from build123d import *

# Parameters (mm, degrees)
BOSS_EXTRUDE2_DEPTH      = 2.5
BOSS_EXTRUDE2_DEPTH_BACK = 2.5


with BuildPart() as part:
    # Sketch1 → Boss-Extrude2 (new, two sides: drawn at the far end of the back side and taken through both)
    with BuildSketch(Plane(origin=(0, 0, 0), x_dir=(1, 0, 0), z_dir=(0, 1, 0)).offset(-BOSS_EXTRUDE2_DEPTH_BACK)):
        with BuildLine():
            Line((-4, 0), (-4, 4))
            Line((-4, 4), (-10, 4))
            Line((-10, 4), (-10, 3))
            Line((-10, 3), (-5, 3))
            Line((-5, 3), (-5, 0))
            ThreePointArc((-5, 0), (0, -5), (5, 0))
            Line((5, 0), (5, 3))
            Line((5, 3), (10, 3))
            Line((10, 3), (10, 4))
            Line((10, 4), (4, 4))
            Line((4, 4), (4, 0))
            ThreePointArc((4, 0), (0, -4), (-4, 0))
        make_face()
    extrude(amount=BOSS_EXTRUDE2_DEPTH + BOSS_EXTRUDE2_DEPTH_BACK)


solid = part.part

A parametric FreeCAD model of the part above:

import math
import FreeCAD as App
import Part
import Sketcher

doc = App.newDocument("Part")
body = doc.addObject("PartDesign::Body", "Body")

# Sketch on XZ plane
sketch1 = body.newObject("Sketcher::SketchObject", "Sketch")
sketch1.AttachmentSupport = (doc.getObject("XZ_Plane"), [""])
sketch1.MapMode = "FlatFace"
sketch1.addGeometry(Part.LineSegment(App.Vector(-4, 0, 0), App.Vector(-4, -4, 0)), False)
sketch1.addGeometry(Part.LineSegment(App.Vector(-4, -4, 0), App.Vector(-10, -4, 0)), False)
sketch1.addGeometry(Part.LineSegment(App.Vector(-10, -4, 0), App.Vector(-10, -3, 0)), False)
sketch1.addGeometry(Part.LineSegment(App.Vector(-10, -3, 0), App.Vector(-5, -3, 0)), False)
sketch1.addGeometry(Part.LineSegment(App.Vector(-5, -3, 0), App.Vector(-5, 0, 0)), False)
sketch1.addGeometry(Part.ArcOfCircle(Part.Circle(App.Vector(0, 0, 0), App.Vector(0, 0, 1), 5), math.radians(0), math.radians(180)), False)
sketch1.addGeometry(Part.LineSegment(App.Vector(5, 0, 0), App.Vector(5, -3, 0)), False)
sketch1.addGeometry(Part.LineSegment(App.Vector(5, -3, 0), App.Vector(10, -3, 0)), False)
sketch1.addGeometry(Part.LineSegment(App.Vector(10, -3, 0), App.Vector(10, -4, 0)), False)
sketch1.addGeometry(Part.LineSegment(App.Vector(10, -4, 0), App.Vector(4, -4, 0)), False)
sketch1.addGeometry(Part.LineSegment(App.Vector(4, -4, 0), App.Vector(4, 0, 0)), False)
sketch1.addGeometry(Part.ArcOfCircle(Part.Circle(App.Vector(0, 0, 0), App.Vector(0, 0, 1), 4), math.radians(0), math.radians(180)), False)
sketch1.addConstraint(Sketcher.Constraint("Coincident", 0, 2, 1, 1))
sketch1.addConstraint(Sketcher.Constraint("Coincident", 1, 2, 2, 1))
sketch1.addConstraint(Sketcher.Constraint("Coincident", 2, 2, 3, 1))
sketch1.addConstraint(Sketcher.Constraint("Coincident", 3, 2, 4, 1))
sketch1.addConstraint(Sketcher.Constraint("Tangent", 4, 2, 5, 2))
sketch1.addConstraint(Sketcher.Constraint("Tangent", 5, 1, 6, 1))
sketch1.addConstraint(Sketcher.Constraint("Coincident", 6, 2, 7, 1))
sketch1.addConstraint(Sketcher.Constraint("Coincident", 7, 2, 8, 1))
sketch1.addConstraint(Sketcher.Constraint("Coincident", 8, 2, 9, 1))
sketch1.addConstraint(Sketcher.Constraint("Coincident", 9, 2, 10, 1))
sketch1.addConstraint(Sketcher.Constraint("Tangent", 10, 2, 11, 1))
sketch1.addConstraint(Sketcher.Constraint("Tangent", 11, 2, 0, 1))
sketch1.addConstraint(Sketcher.Constraint("Vertical", 0))
sketch1.addConstraint(Sketcher.Constraint("Horizontal", 1))
sketch1.addConstraint(Sketcher.Constraint("Vertical", 2))
sketch1.addConstraint(Sketcher.Constraint("Horizontal", 3))
sketch1.addConstraint(Sketcher.Constraint("Vertical", 4))
sketch1.addConstraint(Sketcher.Constraint("Vertical", 6))
sketch1.addConstraint(Sketcher.Constraint("Horizontal", 7))
sketch1.addConstraint(Sketcher.Constraint("Vertical", 8))
sketch1.addConstraint(Sketcher.Constraint("Horizontal", 9))
sketch1.addConstraint(Sketcher.Constraint("Vertical", 10))
sketch1.addConstraint(Sketcher.Constraint("Coincident", 5, 3, -1, 1))
sketch1.addConstraint(Sketcher.Constraint("Coincident", 11, 3, -1, 1))
sketch1.addConstraint(Sketcher.Constraint("Symmetric", 2, 2, 7, 2, -2))
sketch1.addConstraint(Sketcher.Constraint("Horizontal", 1, 2, 8, 2))
sketch1.addConstraint(Sketcher.Constraint("Radius", 5, 5.0))
sketch1.addConstraint(Sketcher.Constraint("Radius", 11, 4.0))
sketch1.addConstraint(Sketcher.Constraint("DistanceX", 1, 2, 1, 1, 6.0))
sketch1.addConstraint(Sketcher.Constraint("DistanceY", 0, 2, 0, 1, 4.0))
sketch1.addConstraint(Sketcher.Constraint("DistanceY", 2, 1, 2, 2, 1.0))
pad1 = body.newObject("PartDesign::Pad", "Pad")
pad1.Profile = sketch1
pad1.Type = "TwoLengths"
pad1.Length = 2.5
pad1.Length2 = 2.5
pad1.Reversed = True

doc.recompute()
